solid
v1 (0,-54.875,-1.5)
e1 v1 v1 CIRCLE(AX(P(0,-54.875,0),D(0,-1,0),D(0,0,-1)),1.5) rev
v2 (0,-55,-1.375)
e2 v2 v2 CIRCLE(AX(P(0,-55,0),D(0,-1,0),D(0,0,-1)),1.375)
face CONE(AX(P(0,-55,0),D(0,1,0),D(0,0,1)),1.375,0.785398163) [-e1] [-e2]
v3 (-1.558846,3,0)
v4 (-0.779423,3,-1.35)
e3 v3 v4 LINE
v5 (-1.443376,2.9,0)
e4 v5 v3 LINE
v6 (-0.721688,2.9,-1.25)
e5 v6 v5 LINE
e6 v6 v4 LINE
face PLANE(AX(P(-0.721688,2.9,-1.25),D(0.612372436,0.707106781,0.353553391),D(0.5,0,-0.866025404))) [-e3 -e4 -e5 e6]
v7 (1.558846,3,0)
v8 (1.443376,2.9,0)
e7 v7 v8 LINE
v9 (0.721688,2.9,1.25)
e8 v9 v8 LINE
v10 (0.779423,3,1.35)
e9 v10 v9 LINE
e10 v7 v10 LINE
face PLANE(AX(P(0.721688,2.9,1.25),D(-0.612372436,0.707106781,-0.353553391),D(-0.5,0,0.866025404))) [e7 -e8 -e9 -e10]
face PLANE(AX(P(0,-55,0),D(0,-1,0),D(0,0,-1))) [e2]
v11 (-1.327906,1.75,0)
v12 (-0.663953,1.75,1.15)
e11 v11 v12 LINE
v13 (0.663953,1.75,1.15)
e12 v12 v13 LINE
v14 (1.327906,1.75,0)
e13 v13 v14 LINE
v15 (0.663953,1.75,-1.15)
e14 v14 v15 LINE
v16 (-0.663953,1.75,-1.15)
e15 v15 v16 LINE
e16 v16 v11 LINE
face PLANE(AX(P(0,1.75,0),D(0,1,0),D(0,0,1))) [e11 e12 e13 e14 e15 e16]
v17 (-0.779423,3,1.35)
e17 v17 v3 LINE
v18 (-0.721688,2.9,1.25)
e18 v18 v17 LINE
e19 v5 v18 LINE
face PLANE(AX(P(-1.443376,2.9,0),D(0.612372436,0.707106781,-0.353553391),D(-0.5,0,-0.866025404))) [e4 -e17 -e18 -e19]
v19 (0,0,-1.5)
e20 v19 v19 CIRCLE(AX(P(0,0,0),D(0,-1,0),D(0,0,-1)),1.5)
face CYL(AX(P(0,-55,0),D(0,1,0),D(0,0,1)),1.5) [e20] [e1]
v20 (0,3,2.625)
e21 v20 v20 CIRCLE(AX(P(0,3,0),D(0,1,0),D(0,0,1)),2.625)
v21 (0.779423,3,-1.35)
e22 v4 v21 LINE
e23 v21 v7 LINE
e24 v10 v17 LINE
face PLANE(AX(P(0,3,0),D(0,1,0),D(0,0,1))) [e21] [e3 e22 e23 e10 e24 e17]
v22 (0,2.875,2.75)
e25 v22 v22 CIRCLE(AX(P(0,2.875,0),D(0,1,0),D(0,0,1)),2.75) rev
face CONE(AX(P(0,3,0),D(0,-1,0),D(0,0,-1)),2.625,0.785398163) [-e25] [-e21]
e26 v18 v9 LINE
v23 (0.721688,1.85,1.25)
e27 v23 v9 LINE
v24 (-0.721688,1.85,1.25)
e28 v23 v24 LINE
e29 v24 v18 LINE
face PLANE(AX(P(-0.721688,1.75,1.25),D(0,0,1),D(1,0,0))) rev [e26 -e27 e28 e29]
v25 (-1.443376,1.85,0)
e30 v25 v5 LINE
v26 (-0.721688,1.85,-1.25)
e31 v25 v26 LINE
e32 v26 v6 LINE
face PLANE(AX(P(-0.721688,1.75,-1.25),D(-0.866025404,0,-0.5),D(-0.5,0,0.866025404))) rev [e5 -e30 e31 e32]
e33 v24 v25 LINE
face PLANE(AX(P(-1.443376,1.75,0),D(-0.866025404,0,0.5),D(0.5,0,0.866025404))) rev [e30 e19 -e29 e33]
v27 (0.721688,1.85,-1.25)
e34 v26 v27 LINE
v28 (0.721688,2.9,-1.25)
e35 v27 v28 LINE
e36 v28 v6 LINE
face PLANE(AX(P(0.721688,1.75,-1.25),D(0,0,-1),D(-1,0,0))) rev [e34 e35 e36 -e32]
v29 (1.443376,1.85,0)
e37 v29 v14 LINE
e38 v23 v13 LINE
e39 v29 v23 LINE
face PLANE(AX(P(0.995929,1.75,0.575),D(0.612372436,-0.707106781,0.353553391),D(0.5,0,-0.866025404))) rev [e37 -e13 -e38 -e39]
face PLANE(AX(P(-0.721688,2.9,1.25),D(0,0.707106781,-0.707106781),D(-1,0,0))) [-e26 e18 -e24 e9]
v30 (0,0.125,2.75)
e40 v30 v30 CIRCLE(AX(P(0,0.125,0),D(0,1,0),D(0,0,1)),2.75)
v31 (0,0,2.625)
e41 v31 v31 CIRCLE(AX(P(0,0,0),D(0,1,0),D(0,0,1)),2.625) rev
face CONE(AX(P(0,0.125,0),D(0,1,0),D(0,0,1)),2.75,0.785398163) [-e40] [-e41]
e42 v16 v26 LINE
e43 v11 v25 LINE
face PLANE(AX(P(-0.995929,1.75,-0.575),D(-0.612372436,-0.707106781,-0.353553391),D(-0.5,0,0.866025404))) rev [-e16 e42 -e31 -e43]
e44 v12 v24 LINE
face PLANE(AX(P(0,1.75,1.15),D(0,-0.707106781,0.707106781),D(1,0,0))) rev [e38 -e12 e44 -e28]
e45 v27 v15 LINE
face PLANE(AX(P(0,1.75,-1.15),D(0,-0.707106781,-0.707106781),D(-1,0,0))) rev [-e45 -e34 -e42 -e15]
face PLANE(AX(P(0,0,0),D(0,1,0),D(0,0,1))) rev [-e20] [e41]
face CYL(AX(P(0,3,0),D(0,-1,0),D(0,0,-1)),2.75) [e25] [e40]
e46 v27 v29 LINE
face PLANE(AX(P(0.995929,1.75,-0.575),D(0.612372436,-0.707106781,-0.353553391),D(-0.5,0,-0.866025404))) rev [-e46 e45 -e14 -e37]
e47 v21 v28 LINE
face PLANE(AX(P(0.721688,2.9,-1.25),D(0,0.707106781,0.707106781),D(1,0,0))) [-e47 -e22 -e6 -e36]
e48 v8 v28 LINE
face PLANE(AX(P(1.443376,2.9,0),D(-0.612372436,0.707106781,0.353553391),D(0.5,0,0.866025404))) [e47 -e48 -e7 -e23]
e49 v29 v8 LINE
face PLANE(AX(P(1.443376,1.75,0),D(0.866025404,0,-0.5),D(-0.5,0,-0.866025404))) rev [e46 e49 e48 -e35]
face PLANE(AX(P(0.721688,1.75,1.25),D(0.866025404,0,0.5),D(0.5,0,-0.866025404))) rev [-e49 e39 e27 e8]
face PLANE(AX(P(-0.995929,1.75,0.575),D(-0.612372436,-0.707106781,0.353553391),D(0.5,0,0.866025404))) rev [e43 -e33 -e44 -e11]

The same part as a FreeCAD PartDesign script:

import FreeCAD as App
import Part
import Sketcher
Q = App.Units.Quantity


def edges_at(feature, points):
    """Names of the edges that pass closest to the given points."""
    edges = feature.Shape.Edges
    near = lambda p: min(range(len(edges)), key=lambda i: edges[i].distToShape(Part.Vertex(*p))[0])
    return sorted({f"Edge{near(p) + 1}" for p in points})

doc = App.newDocument("Part")
body = doc.addObject("PartDesign::Body", "Body")

sketch1 = body.newObject("Sketcher::SketchObject", "Sketch")
sketch1.AttachmentSupport = (doc.getObject("XZ_Plane"), [""])
sketch1.MapMode = "FlatFace"
sketch1.addGeometry(Part.Circle(App.Vector(0, 0, 0), App.Vector(0, 0, 1), 2.8), False)
sketch1.addConstraint([
    Sketcher.Constraint("Coincident", 0, 3, -1, 1),
    Sketcher.Constraint("Diameter", 0, Q("5.5 mm")),
])
pad1 = body.newObject("PartDesign::Pad", "Pad")
pad1.Profile = sketch1
pad1.Length = 3
pad1.Reversed = True

sketch2 = body.newObject("Sketcher::SketchObject", "Sketch001")
sketch2.AttachmentSupport = (doc.getObject("XZ_Plane"), [""])
sketch2.MapMode = "FlatFace"
sketch2.addGeometry(Part.Circle(App.Vector(0, 0, 0), App.Vector(0, 0, 1), 1.5), False)
sketch2.addConstraint([
    Sketcher.Constraint("Coincident", 0, 3, -1, 1),
    Sketcher.Constraint("Diameter", 0, Q("3 mm")),
])
pad2 = body.newObject("PartDesign::Pad", "Pad001")
pad2.Profile = sketch2
pad2.Length = 55
doc.recompute()

chamfer = body.newObject("PartDesign::Chamfer", "Chamfer")
chamfer.Base = (pad2, edges_at(pad2, [(0, 0, -2.75), (0, 3, -2.75)]))
chamfer.Size = 0.125
doc.recompute()

chamfer2 = body.newObject("PartDesign::Chamfer", "Chamfer001")
chamfer2.Base = (chamfer, edges_at(chamfer, [(0, -55, 1.5)]))
chamfer2.Size = 0.125

sketch3 = body.newObject("Sketcher::SketchObject", "Sketch002")
sketch3.AttachmentSupport = (doc.getObject("XZ_Plane"), [""])
sketch3.MapMode = "FlatFace"
sketch3.AttachmentOffset = App.Placement(App.Vector(0, 0, -3), App.Rotation())
sketch3.addGeometry([
    Part.LineSegment(App.Vector(1.4, 0, 0), App.Vector(0.7, -1.2, 0)),
    Part.LineSegment(App.Vector(0.7, -1.2, 0), App.Vector(-0.7, -1.2, 0)),
    Part.LineSegment(App.Vector(-0.7, -1.2, 0), App.Vector(-1.4, 0, 0)),
    Part.LineSegment(App.Vector(-1.4, 0, 0), App.Vector(-0.7, 1.2, 0)),
    Part.LineSegment(App.Vector(-0.7, 1.2, 0), App.Vector(0.7, 1.2, 0)),
    Part.LineSegment(App.Vector(0.7, 1.2, 0), App.Vector(1.4, 0, 0)),
], False)
sketch3.addConstraint([
    Sketcher.Constraint("Coincident", 0, 2, 1, 1),
    Sketcher.Constraint("Coincident", 1, 2, 2, 1),
    Sketcher.Constraint("Coincident", 2, 2, 3, 1),
    Sketcher.Constraint("Coincident", 3, 2, 4, 1),
    Sketcher.Constraint("Coincident", 4, 2, 5, 1),
    Sketcher.Constraint("Coincident", 5, 2, 0, 1),
    Sketcher.Constraint("Horizontal", 1),
    Sketcher.Constraint("Horizontal", 4),
    Sketcher.Constraint("Symmetric", 0, 2, 3, 2, -1, 1),
    Sketcher.Constraint("Symmetric", 2, 2, 5, 2, -1, 1),
    Sketcher.Constraint("PointOnObject", 2, 2, -1),
    Sketcher.Constraint("Parallel", 2, 5),
    Sketcher.Constraint("Vertical", 1, 2, 3, 2),
    Sketcher.Constraint("Angle", 0, Q("-120 deg")),
    Sketcher.Constraint("DistanceY", 1, 2, 3, 2, Q("2.5 mm")),
    Sketcher.Constraint("DistanceX", 1, 2, 1, 1, Q("1.443376 mm")),
])
pocket1 = body.newObject("PartDesign::Pocket", "Pocket")
pocket1.Profile = sketch3
pocket1.Length = 1.25
pocket1.Reversed = True
doc.recompute()

chamfer3 = body.newObject("PartDesign::Chamfer", "Chamfer002")
chamfer3.Base = (pocket1, edges_at(pocket1, [
    (1.083, 3, 0.625),
    (1.083, 3, -0.625),
    (0, 3, -1.25),
    (-1.083, 3, -0.625),
    (-1.083, 3, 0.625),
    (0, 3, 1.25),
]))
chamfer3.Size = 0.1
doc.recompute()

chamfer4 = body.newObject("PartDesign::Chamfer", "Chamfer003")
chamfer4.Base = (chamfer3, edges_at(chamfer3, [
    (1.083, 1.75, 0.625),
    (0, 1.75, 1.25),
    (-1.083, 1.75, 0.625),
    (-1.083, 1.75, -0.625),
    (0, 1.75, -1.25),
    (1.083, 1.75, -0.625),
]))
chamfer4.Size = 0.1

doc.recompute()
